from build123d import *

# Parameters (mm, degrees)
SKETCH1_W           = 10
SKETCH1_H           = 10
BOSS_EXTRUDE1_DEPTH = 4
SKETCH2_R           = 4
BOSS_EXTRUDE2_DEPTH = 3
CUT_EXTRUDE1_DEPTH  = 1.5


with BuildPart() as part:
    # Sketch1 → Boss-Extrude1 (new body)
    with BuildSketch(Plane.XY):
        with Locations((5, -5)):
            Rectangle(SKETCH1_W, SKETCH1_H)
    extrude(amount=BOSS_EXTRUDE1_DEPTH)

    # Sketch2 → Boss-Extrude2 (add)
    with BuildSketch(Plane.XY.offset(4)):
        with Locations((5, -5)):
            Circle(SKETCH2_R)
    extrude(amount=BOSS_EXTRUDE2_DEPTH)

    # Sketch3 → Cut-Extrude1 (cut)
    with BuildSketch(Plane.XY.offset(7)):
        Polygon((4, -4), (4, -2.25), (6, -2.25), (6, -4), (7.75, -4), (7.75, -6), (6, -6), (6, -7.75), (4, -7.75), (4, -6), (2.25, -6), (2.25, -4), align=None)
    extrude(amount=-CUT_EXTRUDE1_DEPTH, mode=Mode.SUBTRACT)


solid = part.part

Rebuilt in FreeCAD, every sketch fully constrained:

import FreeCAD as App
import Part
import Sketcher


def add_polygon(sketch, points):
    """Adds a closed chain of lines whose ends are joined by coincident constraints."""
    first, n = sketch.GeometryCount, len(points)
    for a, b in zip(points, points[1:] + points[:1]):
        sketch.addGeometry(Part.LineSegment(App.Vector(*a, 0), App.Vector(*b, 0)), False)
    for i in range(n):
        sketch.addConstraint(Sketcher.Constraint("Coincident", first + i, 2, first + (i + 1) % n, 1))

doc = App.newDocument("Part")
body = doc.addObject("PartDesign::Body", "Body")

sketch1 = body.newObject("Sketcher::SketchObject", "Sketch")
sketch1.AttachmentSupport = (doc.getObject("XY_Plane"), [""])
sketch1.MapMode = "FlatFace"
add_polygon(sketch1, [(0, 0), (0, -10), (10, -10), (10, 0)])
sketch1.addConstraint([
    Sketcher.Constraint("Vertical", 0),
    Sketcher.Constraint("Horizontal", 1),
    Sketcher.Constraint("Vertical", 2),
    Sketcher.Constraint("Horizontal", 3),
    Sketcher.Constraint("Coincident", 3, 2, -1, 1),
    Sketcher.Constraint("Equal", 3, 0),
    Sketcher.Constraint("DistanceX", 1, 1, 1, 2, 10.0),
])
pad1 = body.newObject("PartDesign::Pad", "Pad")
pad1.Profile = sketch1
pad1.Length = 4

sketch2 = body.newObject("Sketcher::SketchObject", "Sketch001")
sketch2.AttachmentSupport = (doc.getObject("XY_Plane"), [""])
sketch2.MapMode = "FlatFace"
sketch2.AttachmentOffset = App.Placement(App.Vector(0, 0, 4), App.Rotation())
sketch2.addGeometry(Part.Circle(App.Vector(5, -5, 0), App.Vector(0, 0, 1), 4), False)
sketch2.addConstraint([
    Sketcher.Constraint("Diameter", 0, 8.0),
    Sketcher.Constraint("DistanceX", -1, 1, 0, 3, 5.0),
    Sketcher.Constraint("DistanceY", 0, 3, -1, 1, 5.0),
])
pad2 = body.newObject("PartDesign::Pad", "Pad001")
pad2.Profile = sketch2
pad2.Length = 3

sketch3 = body.newObject("Sketcher::SketchObject", "Sketch002")
sketch3.AttachmentSupport = (doc.getObject("XY_Plane"), [""])
sketch3.MapMode = "FlatFace"
sketch3.AttachmentOffset = App.Placement(App.Vector(0, 0, 7), App.Rotation())
add_polygon(sketch3, [(4, -2.25), (4, -4), (2.25, -4), (2.25, -6), (4, -6), (4, -7.75), (6, -7.75), (6, -6), (7.75, -6), (7.75, -4), (6, -4), (6, -2.25)])
sketch3.addConstraint([
    Sketcher.Constraint("Vertical", 0),
    Sketcher.Constraint("Horizontal", 1),
    Sketcher.Constraint("Vertical", 2),
    Sketcher.Constraint("Horizontal", 3),
    Sketcher.Constraint("Vertical", 4),
    Sketcher.Constraint("Horizontal", 5),
    Sketcher.Constraint("Vertical", 6),
    Sketcher.Constraint("Horizontal", 7),
    Sketcher.Constraint("Vertical", 8),
    Sketcher.Constraint("Horizontal", 9),
    Sketcher.Constraint("Vertical", 10),
    Sketcher.Constraint("Horizontal", 11),
    Sketcher.Constraint("Horizontal", 3, 2, 6, 2),
    Sketcher.Constraint("Horizontal", 1, 2, 8, 2),
    Sketcher.Constraint("Vertical", 0, 2, 3, 2),
    Sketcher.Constraint("Vertical", 6, 2, 9, 2),
    Sketcher.Constraint("Equal", 3, 7),
    Sketcher.Constraint("Equal", 9, 0),
    Sketcher.Constraint("Equal", 11, 2),
    Sketcher.Constraint("Equal", 0, 4),
    Sketcher.Constraint("DistanceX", 5, 1, 5, 2, 2.0),
    Sketcher.Constraint("DistanceX", -1, 1, 0, 2, 4.0),
    Sketcher.Constraint("DistanceY", 0, 2, -1, 1, 4.0),
    Sketcher.Constraint("DistanceX", 1, 2, 1, 1, 1.75),
])
pocket1 = body.newObject("PartDesign::Pocket", "Pocket")
pocket1.Profile = sketch3
pocket1.Length = 1.5

doc.recompute()
